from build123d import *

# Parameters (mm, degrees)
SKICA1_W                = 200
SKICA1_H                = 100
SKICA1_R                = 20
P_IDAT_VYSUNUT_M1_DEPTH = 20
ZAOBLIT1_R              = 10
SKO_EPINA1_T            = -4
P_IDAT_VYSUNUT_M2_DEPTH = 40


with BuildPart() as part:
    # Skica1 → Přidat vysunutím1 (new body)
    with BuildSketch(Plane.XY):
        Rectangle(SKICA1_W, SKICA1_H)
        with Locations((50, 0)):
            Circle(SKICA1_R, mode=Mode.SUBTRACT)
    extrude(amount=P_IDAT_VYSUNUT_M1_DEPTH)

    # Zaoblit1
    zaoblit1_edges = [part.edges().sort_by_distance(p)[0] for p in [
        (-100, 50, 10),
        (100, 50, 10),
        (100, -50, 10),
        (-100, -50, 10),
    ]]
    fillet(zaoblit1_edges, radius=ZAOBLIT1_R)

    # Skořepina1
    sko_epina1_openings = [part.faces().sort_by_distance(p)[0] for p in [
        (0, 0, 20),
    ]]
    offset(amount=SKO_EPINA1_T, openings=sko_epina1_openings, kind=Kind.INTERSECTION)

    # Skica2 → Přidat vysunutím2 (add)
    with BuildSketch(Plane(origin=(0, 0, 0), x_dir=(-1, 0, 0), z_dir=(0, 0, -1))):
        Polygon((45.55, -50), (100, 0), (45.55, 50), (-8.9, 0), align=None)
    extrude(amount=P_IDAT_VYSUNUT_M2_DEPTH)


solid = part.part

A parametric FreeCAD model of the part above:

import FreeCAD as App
import Part
import Sketcher

V = App.Vector


def edges_at(feature, points):
    """Names of the edges that pass closest to the given points."""
    edges = feature.Shape.Edges
    near = lambda p: min(range(len(edges)), key=lambda i: edges[i].distToShape(Part.Vertex(*p))[0])
    return sorted({f"Edge{near(p) + 1}" for p in points})


def faces_at(feature, points):
    """Names of the faces that lie closest to the given points."""
    faces = feature.Shape.Faces
    near = lambda p: min(range(len(faces)), key=lambda i: faces[i].distToShape(Part.Vertex(*p))[0])
    return sorted({f"Face{near(p) + 1}" for p in points})

doc = App.newDocument("Part")
body = doc.addObject("PartDesign::Body", "Body")

# Sketch on XY plane
sketch1 = body.newObject("Sketcher::SketchObject", "Sketch")
sketch1.AttachmentSupport = (doc.getObject("XY_Plane"), [""])
sketch1.MapMode = "FlatFace"
sketch1.addGeometry(Part.LineSegment(V(-100, 50, 0), V(-100, -50, 0)), False)
sketch1.addGeometry(Part.LineSegment(V(-100, -50, 0), V(100, -50, 0)), False)
sketch1.addGeometry(Part.LineSegment(V(100, -50, 0), V(100, 50, 0)), False)
sketch1.addGeometry(Part.LineSegment(V(100, 50, 0), V(-100, 50, 0)), False)
sketch1.addGeometry(Part.Circle(V(50, 0, 0), V(0, 0, 1), 20), False)
sketch1.addConstraint(Sketcher.Constraint("Coincident", 0, 2, 1, 1))
sketch1.addConstraint(Sketcher.Constraint("Coincident", 1, 2, 2, 1))
sketch1.addConstraint(Sketcher.Constraint("Coincident", 2, 2, 3, 1))
sketch1.addConstraint(Sketcher.Constraint("Coincident", 3, 2, 0, 1))
sketch1.addConstraint(Sketcher.Constraint("Vertical", 0))
sketch1.addConstraint(Sketcher.Constraint("Horizontal", 1))
sketch1.addConstraint(Sketcher.Constraint("Vertical", 2))
sketch1.addConstraint(Sketcher.Constraint("Horizontal", 3))
sketch1.addConstraint(Sketcher.Constraint("Symmetric", 0, 2, 2, 2, -1, 1))
sketch1.addConstraint(Sketcher.Constraint("PointOnObject", 4, 3, -1))
sketch1.addConstraint(Sketcher.Constraint("Diameter", 4, 40.0))
sketch1.addConstraint(Sketcher.Constraint("DistanceX", 1, 1, 1, 2, 200.0))
sketch1.addConstraint(Sketcher.Constraint("DistanceY", 0, 2, 0, 1, 100.0))
sketch1.addConstraint(Sketcher.Constraint("DistanceX", -1, 1, 4, 3, 50.0))
pad1 = body.newObject("PartDesign::Pad", "Pad")
pad1.Profile = sketch1
pad1.Length = 20
doc.recompute()

fillet = body.newObject("PartDesign::Fillet", "Fillet")
fillet.Base = (pad1, edges_at(pad1, [
    (-100, 50, 10),
    (100, 50, 10),
    (100, -50, 10),
    (-100, -50, 10),
]))
fillet.Radius = 10
doc.recompute()

thickness = body.newObject("PartDesign::Thickness", "Thickness")
thickness.Base = (fillet, faces_at(fillet, [(0, 0, 20)]))
thickness.Value = 4
thickness.Reversed = True
thickness.Join = "Intersection"

# Sketch on XY plane
sketch2 = body.newObject("Sketcher::SketchObject", "Sketch001")
sketch2.AttachmentSupport = (doc.getObject("XY_Plane"), [""])
sketch2.MapMode = "FlatFace"
sketch2.addGeometry(Part.LineSegment(V(-46, -50, 0), V(-100, 0, 0)), False)
sketch2.addGeometry(Part.LineSegment(V(-100, 0, 0), V(-46, 50, 0)), False)
sketch2.addGeometry(Part.LineSegment(V(-46, 50, 0), V(9, 0, 0)), False)
sketch2.addGeometry(Part.LineSegment(V(9, 0, 0), V(-46, -50, 0)), False)
sketch2.addConstraint(Sketcher.Constraint("Coincident", 0, 2, 1, 1))
sketch2.addConstraint(Sketcher.Constraint("Coincident", 1, 2, 2, 1))
sketch2.addConstraint(Sketcher.Constraint("Coincident", 2, 2, 3, 1))
sketch2.addConstraint(Sketcher.Constraint("Coincident", 3, 2, 0, 1))
sketch2.addConstraint(Sketcher.Constraint("Symmetric", 1, 2, 3, 2, -1))
sketch2.addConstraint(Sketcher.Constraint("PointOnObject", 0, 2, -1))
sketch2.addConstraint(Sketcher.Constraint("PointOnObject", 2, 2, -1))
sketch2.addConstraint(Sketcher.Constraint("Parallel", 0, 2))
sketch2.addConstraint(Sketcher.Constraint("DistanceX", 0, 2, -1, 1, 100.0))
sketch2.addConstraint(Sketcher.Constraint("DistanceY", -1, 1, 1, 2, 50.0))
sketch2.addConstraint(Sketcher.Constraint("DistanceX", -1, 1, 2, 2, 8.9))
pad2 = body.newObject("PartDesign::Pad", "Pad001")
pad2.Profile = sketch2
pad2.Length = 40
pad2.Reversed = True

doc.recompute()
